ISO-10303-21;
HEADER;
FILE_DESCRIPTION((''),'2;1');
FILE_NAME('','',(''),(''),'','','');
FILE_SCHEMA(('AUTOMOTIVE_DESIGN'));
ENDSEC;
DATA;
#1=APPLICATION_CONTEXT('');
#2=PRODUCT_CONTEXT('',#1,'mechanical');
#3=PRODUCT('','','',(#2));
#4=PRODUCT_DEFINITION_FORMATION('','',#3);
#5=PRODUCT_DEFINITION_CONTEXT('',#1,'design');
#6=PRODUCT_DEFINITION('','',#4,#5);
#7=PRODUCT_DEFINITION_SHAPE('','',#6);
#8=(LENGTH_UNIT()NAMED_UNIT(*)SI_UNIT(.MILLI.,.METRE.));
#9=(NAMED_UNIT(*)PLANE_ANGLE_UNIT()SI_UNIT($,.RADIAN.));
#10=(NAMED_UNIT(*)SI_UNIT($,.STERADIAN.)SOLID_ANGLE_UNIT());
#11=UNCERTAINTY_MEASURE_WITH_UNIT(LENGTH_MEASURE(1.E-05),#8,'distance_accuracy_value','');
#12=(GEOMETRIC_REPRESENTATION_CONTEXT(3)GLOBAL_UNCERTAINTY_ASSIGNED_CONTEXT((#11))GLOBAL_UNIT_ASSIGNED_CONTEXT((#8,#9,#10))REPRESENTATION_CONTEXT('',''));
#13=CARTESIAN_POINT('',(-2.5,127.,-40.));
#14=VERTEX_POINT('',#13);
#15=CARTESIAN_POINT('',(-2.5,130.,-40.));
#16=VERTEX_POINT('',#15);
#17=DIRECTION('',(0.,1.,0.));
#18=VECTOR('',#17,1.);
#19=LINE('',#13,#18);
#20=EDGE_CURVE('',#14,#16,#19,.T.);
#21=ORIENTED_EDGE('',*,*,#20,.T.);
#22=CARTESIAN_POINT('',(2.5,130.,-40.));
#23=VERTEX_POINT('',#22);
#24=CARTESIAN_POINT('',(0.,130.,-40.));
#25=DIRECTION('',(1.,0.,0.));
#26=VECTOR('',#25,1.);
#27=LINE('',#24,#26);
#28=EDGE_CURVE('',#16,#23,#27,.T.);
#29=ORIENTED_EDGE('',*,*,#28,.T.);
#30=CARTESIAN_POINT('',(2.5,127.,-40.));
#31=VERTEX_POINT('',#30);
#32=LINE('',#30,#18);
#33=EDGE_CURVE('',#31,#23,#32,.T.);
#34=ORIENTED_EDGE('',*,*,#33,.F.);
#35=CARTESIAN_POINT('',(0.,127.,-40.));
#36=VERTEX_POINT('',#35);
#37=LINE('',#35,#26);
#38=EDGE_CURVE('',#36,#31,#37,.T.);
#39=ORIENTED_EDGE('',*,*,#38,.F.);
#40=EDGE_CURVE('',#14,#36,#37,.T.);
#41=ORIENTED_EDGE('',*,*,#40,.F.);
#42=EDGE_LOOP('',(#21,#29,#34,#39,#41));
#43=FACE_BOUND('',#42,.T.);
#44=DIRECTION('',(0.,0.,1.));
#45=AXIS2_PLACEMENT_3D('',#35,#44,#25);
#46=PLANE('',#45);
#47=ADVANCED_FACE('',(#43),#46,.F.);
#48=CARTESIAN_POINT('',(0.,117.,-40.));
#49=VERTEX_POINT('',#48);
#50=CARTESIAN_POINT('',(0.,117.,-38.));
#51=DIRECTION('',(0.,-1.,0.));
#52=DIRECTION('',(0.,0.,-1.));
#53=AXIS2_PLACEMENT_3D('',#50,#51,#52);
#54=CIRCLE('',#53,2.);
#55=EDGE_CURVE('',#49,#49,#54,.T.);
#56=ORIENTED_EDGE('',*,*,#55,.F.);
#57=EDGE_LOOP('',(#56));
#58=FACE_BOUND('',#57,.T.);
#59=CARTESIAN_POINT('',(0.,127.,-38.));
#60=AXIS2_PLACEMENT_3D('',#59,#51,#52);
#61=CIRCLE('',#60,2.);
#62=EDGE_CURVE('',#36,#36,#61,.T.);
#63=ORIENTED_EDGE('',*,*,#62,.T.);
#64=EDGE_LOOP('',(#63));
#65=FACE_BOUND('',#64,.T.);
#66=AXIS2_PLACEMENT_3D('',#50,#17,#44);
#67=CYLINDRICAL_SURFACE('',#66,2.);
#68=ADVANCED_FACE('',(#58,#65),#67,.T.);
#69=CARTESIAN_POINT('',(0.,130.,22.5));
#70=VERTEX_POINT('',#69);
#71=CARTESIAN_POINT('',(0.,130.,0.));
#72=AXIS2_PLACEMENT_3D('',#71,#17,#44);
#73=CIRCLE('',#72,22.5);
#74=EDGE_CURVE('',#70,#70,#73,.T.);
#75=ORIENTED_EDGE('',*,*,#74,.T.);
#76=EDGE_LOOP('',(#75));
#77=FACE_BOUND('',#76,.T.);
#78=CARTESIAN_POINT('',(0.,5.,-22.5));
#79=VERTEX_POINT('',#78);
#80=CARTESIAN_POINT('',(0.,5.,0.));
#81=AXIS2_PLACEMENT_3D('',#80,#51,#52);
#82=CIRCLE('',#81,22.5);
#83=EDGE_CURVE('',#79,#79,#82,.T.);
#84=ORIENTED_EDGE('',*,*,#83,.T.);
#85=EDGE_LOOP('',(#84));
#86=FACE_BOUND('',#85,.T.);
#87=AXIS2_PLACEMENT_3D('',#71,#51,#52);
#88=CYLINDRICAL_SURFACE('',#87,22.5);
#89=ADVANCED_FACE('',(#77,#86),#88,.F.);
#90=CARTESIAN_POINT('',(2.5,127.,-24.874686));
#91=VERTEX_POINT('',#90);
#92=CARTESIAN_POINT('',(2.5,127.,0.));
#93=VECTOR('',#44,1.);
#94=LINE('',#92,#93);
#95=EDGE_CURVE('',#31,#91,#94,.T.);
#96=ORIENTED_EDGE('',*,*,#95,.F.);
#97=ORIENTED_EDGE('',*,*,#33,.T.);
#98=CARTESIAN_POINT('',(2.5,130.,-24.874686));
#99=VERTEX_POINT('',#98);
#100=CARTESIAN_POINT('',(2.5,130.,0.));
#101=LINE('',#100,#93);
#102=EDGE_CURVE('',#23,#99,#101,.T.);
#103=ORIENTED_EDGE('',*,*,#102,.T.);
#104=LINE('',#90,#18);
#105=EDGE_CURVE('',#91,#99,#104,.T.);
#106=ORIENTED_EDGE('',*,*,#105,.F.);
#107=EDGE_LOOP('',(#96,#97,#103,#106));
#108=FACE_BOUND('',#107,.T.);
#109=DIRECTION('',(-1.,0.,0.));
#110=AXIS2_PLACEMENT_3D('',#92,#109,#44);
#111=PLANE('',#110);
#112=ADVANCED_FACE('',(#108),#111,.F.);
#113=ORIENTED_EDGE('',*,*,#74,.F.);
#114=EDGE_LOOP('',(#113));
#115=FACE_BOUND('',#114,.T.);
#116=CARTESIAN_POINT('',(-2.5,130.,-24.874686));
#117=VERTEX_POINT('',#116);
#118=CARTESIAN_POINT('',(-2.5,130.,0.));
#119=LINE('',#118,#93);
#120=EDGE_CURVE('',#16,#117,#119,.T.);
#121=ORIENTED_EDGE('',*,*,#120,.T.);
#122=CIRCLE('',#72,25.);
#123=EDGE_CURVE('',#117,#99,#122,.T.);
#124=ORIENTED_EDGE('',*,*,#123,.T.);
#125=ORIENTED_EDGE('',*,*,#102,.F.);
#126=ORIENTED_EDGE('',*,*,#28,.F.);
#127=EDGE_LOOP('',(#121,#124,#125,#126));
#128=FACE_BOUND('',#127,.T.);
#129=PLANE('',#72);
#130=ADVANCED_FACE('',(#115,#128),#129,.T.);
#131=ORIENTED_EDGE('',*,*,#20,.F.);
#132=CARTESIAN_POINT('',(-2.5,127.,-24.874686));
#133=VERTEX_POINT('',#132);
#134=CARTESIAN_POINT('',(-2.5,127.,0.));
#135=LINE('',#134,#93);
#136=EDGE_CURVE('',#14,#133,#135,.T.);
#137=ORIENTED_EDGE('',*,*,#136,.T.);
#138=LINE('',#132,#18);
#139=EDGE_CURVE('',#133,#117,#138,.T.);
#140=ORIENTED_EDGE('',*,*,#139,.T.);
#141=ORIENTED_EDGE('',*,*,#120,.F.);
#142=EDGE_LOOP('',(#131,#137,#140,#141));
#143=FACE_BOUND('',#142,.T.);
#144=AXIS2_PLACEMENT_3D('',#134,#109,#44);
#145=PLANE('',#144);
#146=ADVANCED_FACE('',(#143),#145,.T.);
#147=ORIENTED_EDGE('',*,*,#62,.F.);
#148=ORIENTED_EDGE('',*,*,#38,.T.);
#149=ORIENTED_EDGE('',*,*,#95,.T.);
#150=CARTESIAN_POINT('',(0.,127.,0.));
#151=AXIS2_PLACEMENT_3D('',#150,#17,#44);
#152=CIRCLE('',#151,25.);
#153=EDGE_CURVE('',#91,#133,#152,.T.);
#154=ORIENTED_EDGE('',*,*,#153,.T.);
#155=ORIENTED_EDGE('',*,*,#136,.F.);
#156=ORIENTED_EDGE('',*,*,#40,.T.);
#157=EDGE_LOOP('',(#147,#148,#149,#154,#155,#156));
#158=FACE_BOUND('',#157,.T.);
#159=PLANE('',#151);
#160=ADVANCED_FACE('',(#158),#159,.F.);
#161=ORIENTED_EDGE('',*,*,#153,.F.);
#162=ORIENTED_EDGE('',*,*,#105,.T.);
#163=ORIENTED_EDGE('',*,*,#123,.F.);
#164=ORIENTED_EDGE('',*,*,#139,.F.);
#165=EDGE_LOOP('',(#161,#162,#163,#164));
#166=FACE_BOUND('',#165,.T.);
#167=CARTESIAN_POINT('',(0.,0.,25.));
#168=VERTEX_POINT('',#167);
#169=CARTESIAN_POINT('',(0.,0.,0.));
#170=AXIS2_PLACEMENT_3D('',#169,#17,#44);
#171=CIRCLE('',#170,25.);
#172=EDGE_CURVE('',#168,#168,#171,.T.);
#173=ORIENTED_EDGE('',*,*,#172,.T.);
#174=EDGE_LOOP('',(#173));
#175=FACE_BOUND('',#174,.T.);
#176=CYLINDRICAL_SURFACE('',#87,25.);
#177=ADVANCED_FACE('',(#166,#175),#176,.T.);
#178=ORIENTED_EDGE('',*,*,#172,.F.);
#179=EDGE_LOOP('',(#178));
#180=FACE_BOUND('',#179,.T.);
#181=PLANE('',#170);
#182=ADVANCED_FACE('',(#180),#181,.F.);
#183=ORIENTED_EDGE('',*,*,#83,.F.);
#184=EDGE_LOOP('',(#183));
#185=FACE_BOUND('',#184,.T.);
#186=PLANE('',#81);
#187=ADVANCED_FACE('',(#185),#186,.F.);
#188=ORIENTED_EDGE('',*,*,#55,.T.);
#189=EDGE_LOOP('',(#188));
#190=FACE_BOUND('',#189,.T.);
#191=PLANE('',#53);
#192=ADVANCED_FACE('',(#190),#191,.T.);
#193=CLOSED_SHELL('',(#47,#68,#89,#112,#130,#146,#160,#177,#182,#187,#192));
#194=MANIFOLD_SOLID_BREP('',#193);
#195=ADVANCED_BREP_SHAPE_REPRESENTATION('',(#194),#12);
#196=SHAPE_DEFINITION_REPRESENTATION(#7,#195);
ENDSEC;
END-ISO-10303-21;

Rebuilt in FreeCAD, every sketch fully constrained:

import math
import FreeCAD as App
import Part
import Sketcher

V = App.Vector

doc = App.newDocument("Part")
body = doc.addObject("PartDesign::Body", "Body")

# Sketch on XZ plane
sketch1 = doc.addObject("Sketcher::SketchObject", "Sketch")
body.addObject(sketch1)
sketch1.AttachmentSupport = (doc.XZ_Plane, [""])
sketch1.MapMode = "FlatFace"
sketch1.addGeometry(Part.Circle(V(0, 0, 0), V(0, 0, 1), 25), False)
sketch1.addGeometry(Part.Circle(V(0, 0, 0), V(0, 0, 1), 22.5), False)
sketch1.addConstraint(Sketcher.Constraint("Coincident", 0, 3, -1, 1))
sketch1.addConstraint(Sketcher.Constraint("Coincident", 1, 3, -1, 1))
sketch1.addConstraint(Sketcher.Constraint("Diameter", 0, 50.0))
sketch1.addConstraint(Sketcher.Constraint("Diameter", 1, 45.0))
pad1 = doc.addObject("PartDesign::Pad", "Pad")
body.addObject(pad1)
pad1.Profile = sketch1
pad1.Length = 130
pad1.Reversed = True

# Sketch on XZ plane
sketch2 = doc.addObject("Sketcher::SketchObject", "Sketch001")
body.addObject(sketch2)
sketch2.AttachmentSupport = (doc.XZ_Plane, [""])
sketch2.MapMode = "FlatFace"
sketch2.addGeometry(Part.Circle(V(0, 0, 0), V(0, 0, 1), 25), False)
sketch2.addConstraint(Sketcher.Constraint("Coincident", 0, 3, -1, 1))
sketch2.addConstraint(Sketcher.Constraint("Diameter", 0, 50.0))
pad2 = doc.addObject("PartDesign::Pad", "Pad001")
body.addObject(pad2)
pad2.Profile = sketch2
pad2.Length = 5
pad2.Reversed = True

# Sketch on XZ plane
sketch3 = doc.addObject("Sketcher::SketchObject", "Sketch002")
body.addObject(sketch3)
sketch3.AttachmentSupport = (doc.XZ_Plane, [""])
sketch3.MapMode = "FlatFace"
sketch3.AttachmentOffset = App.Placement(V(0, 0, -130), App.Rotation())
sketch3.addGeometry(Part.ArcOfCircle(Part.Circle(V(0, 0, 0), V(0, 0, 1), 25), math.radians(-95.73917), math.radians(-90)), False)
sketch3.addGeometry(Part.ArcOfCircle(Part.Circle(V(0, 0, 0), V(0, 0, 1), 25), math.radians(-90), math.radians(-84.26083)), False)
sketch3.addGeometry(Part.LineSegment(V(2.5, -24.874686, 0), V(2.5, -40, 0)), False)
sketch3.addGeometry(Part.LineSegment(V(2.5, -40, 0), V(-2.5, -40, 0)), False)
sketch3.addGeometry(Part.LineSegment(V(-2.5, -40, 0), V(-2.5, -24.874686, 0)), False)
sketch3.addConstraint(Sketcher.Constraint("Tangent", 0, 2, 1, 1))
sketch3.addConstraint(Sketcher.Constraint("Coincident", 1, 2, 2, 1))
sketch3.addConstraint(Sketcher.Constraint("Coincident", 2, 2, 3, 1))
sketch3.addConstraint(Sketcher.Constraint("Coincident", 3, 2, 4, 1))
sketch3.addConstraint(Sketcher.Constraint("Coincident", 4, 2, 0, 1))
sketch3.addConstraint(Sketcher.Constraint("Vertical", 2))
sketch3.addConstraint(Sketcher.Constraint("Horizontal", 3))
sketch3.addConstraint(Sketcher.Constraint("Vertical", 4))
sketch3.addConstraint(Sketcher.Constraint("Coincident", 0, 3, -1, 1))
sketch3.addConstraint(Sketcher.Constraint("Equal", 0, 1))
sketch3.addConstraint(Sketcher.Constraint("PointOnObject", 0, 2, -2))
sketch3.addConstraint(Sketcher.Constraint("Horizontal", 1, 2, 4, 2))
sketch3.addConstraint(Sketcher.Constraint("Radius", 0, 25.0))
sketch3.addConstraint(Sketcher.Constraint("DistanceX", 3, 2, 3, 1, 5.0))
sketch3.addConstraint(Sketcher.Constraint("DistanceY", 2, 2, -1, 1, 40.0))
pad3 = doc.addObject("PartDesign::Pad", "Pad002")
body.addObject(pad3)
pad3.Profile = sketch3
pad3.Length = 3

# Sketch on XZ plane
sketch4 = doc.addObject("Sketcher::SketchObject", "Sketch003")
body.addObject(sketch4)
sketch4.AttachmentSupport = (doc.XZ_Plane, [""])
sketch4.MapMode = "FlatFace"
sketch4.AttachmentOffset = App.Placement(V(0, 0, -127), App.Rotation())
sketch4.addGeometry(Part.Circle(V(0, -38, 0), V(0, 0, 1), 2), False)
sketch4.addConstraint(Sketcher.Constraint("PointOnObject", 0, 3, -2))
sketch4.addConstraint(Sketcher.Constraint("Diameter", 0, 4.0))
sketch4.addConstraint(Sketcher.Constraint("DistanceY", 0, 3, -1, 1, 38.0))
pad4 = doc.addObject("PartDesign::Pad", "Pad003")
body.addObject(pad4)
pad4.Profile = sketch4
pad4.Length = 10

doc.recompute()
